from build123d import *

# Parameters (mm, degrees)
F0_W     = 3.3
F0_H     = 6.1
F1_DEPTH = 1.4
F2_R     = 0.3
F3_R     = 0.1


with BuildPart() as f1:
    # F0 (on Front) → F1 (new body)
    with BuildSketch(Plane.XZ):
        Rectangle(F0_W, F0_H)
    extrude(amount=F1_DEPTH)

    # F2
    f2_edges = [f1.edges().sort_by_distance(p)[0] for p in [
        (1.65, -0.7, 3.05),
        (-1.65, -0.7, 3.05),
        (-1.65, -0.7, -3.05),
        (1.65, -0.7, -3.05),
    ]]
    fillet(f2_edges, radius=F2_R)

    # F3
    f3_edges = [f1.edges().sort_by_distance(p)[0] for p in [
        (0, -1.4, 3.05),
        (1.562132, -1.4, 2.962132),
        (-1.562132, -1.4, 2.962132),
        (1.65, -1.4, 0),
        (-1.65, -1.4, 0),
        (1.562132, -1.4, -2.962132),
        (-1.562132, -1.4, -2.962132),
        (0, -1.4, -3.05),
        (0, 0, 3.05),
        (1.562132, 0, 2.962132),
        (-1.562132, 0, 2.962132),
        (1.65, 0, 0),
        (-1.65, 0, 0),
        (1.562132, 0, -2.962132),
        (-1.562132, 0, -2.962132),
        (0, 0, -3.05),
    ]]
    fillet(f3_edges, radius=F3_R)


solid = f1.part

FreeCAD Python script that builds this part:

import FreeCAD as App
import Part
import Sketcher
from FreeCAD import Vector
Q = App.Units.Quantity


def edges_at(feature, points):
    """Names of the edges that pass closest to the given points."""
    edges = feature.Shape.Edges
    near = lambda p: min(range(len(edges)), key=lambda i: edges[i].distToShape(Part.Vertex(*p))[0])
    return sorted({f"Edge{near(p) + 1}" for p in points})

doc = App.newDocument("Part")
body = doc.addObject("PartDesign::Body", "Body")

sketch1 = body.newObject("Sketcher::SketchObject", "Sketch")
sketch1.AttachmentSupport = (doc.getObject("XZ_Plane"), [""])
sketch1.MapMode = "FlatFace"
sketch1.addGeometry([
    Part.LineSegment(Vector(-1.6, 3, 0), Vector(-1.6, -3, 0)),
    Part.LineSegment(Vector(-1.6, -3, 0), Vector(1.6, -3, 0)),
    Part.LineSegment(Vector(1.6, -3, 0), Vector(1.6, 3, 0)),
    Part.LineSegment(Vector(1.6, 3, 0), Vector(-1.6, 3, 0)),
], False)
sketch1.addConstraint([
    Sketcher.Constraint("Coincident", 0, 2, 1, 1),
    Sketcher.Constraint("Coincident", 1, 2, 2, 1),
    Sketcher.Constraint("Coincident", 2, 2, 3, 1),
    Sketcher.Constraint("Coincident", 3, 2, 0, 1),
    Sketcher.Constraint("Vertical", 0),
    Sketcher.Constraint("Horizontal", 1),
    Sketcher.Constraint("Vertical", 2),
    Sketcher.Constraint("Horizontal", 3),
    Sketcher.Constraint("Symmetric", 0, 2, 2, 2, -1, 1),
    Sketcher.Constraint("DistanceX", 1, 1, 1, 2, Q("3.3 mm")),
    Sketcher.Constraint("DistanceY", 0, 2, 0, 1, Q("6.1 mm")),
])
pad1 = body.newObject("PartDesign::Pad", "Pad")
pad1.Profile = sketch1
pad1.Length = 1.4
doc.recompute()

fillet = body.newObject("PartDesign::Fillet", "Fillet")
fillet.Base = (pad1, edges_at(pad1, [
    (1.65, -0.7, 3.05),
    (-1.65, -0.7, 3.05),
    (-1.65, -0.7, -3.05),
    (1.65, -0.7, -3.05),
]))
fillet.Radius = 0.3
doc.recompute()

fillet2 = body.newObject("PartDesign::Fillet", "Fillet001")
fillet2.Base = (fillet, edges_at(fillet, [
    (0, -1.4, 3.05),
    (1.562, -1.4, 2.962),
    (-1.562, -1.4, 2.962),
    (1.65, -1.4, 0),
    (-1.65, -1.4, 0),
    (1.562, -1.4, -2.962),
    (-1.562, -1.4, -2.962),
    (0, -1.4, -3.05),
    (0, 0, 3.05),
    (1.562, 0, 2.962),
    (-1.562, 0, 2.962),
    (1.65, 0, 0),
    (-1.65, 0, 0),
    (1.562, 0, -2.962),
    (-1.562, 0, -2.962),
    (0, 0, -3.05),
]))
fillet2.Radius = 0.1

doc.recompute()
